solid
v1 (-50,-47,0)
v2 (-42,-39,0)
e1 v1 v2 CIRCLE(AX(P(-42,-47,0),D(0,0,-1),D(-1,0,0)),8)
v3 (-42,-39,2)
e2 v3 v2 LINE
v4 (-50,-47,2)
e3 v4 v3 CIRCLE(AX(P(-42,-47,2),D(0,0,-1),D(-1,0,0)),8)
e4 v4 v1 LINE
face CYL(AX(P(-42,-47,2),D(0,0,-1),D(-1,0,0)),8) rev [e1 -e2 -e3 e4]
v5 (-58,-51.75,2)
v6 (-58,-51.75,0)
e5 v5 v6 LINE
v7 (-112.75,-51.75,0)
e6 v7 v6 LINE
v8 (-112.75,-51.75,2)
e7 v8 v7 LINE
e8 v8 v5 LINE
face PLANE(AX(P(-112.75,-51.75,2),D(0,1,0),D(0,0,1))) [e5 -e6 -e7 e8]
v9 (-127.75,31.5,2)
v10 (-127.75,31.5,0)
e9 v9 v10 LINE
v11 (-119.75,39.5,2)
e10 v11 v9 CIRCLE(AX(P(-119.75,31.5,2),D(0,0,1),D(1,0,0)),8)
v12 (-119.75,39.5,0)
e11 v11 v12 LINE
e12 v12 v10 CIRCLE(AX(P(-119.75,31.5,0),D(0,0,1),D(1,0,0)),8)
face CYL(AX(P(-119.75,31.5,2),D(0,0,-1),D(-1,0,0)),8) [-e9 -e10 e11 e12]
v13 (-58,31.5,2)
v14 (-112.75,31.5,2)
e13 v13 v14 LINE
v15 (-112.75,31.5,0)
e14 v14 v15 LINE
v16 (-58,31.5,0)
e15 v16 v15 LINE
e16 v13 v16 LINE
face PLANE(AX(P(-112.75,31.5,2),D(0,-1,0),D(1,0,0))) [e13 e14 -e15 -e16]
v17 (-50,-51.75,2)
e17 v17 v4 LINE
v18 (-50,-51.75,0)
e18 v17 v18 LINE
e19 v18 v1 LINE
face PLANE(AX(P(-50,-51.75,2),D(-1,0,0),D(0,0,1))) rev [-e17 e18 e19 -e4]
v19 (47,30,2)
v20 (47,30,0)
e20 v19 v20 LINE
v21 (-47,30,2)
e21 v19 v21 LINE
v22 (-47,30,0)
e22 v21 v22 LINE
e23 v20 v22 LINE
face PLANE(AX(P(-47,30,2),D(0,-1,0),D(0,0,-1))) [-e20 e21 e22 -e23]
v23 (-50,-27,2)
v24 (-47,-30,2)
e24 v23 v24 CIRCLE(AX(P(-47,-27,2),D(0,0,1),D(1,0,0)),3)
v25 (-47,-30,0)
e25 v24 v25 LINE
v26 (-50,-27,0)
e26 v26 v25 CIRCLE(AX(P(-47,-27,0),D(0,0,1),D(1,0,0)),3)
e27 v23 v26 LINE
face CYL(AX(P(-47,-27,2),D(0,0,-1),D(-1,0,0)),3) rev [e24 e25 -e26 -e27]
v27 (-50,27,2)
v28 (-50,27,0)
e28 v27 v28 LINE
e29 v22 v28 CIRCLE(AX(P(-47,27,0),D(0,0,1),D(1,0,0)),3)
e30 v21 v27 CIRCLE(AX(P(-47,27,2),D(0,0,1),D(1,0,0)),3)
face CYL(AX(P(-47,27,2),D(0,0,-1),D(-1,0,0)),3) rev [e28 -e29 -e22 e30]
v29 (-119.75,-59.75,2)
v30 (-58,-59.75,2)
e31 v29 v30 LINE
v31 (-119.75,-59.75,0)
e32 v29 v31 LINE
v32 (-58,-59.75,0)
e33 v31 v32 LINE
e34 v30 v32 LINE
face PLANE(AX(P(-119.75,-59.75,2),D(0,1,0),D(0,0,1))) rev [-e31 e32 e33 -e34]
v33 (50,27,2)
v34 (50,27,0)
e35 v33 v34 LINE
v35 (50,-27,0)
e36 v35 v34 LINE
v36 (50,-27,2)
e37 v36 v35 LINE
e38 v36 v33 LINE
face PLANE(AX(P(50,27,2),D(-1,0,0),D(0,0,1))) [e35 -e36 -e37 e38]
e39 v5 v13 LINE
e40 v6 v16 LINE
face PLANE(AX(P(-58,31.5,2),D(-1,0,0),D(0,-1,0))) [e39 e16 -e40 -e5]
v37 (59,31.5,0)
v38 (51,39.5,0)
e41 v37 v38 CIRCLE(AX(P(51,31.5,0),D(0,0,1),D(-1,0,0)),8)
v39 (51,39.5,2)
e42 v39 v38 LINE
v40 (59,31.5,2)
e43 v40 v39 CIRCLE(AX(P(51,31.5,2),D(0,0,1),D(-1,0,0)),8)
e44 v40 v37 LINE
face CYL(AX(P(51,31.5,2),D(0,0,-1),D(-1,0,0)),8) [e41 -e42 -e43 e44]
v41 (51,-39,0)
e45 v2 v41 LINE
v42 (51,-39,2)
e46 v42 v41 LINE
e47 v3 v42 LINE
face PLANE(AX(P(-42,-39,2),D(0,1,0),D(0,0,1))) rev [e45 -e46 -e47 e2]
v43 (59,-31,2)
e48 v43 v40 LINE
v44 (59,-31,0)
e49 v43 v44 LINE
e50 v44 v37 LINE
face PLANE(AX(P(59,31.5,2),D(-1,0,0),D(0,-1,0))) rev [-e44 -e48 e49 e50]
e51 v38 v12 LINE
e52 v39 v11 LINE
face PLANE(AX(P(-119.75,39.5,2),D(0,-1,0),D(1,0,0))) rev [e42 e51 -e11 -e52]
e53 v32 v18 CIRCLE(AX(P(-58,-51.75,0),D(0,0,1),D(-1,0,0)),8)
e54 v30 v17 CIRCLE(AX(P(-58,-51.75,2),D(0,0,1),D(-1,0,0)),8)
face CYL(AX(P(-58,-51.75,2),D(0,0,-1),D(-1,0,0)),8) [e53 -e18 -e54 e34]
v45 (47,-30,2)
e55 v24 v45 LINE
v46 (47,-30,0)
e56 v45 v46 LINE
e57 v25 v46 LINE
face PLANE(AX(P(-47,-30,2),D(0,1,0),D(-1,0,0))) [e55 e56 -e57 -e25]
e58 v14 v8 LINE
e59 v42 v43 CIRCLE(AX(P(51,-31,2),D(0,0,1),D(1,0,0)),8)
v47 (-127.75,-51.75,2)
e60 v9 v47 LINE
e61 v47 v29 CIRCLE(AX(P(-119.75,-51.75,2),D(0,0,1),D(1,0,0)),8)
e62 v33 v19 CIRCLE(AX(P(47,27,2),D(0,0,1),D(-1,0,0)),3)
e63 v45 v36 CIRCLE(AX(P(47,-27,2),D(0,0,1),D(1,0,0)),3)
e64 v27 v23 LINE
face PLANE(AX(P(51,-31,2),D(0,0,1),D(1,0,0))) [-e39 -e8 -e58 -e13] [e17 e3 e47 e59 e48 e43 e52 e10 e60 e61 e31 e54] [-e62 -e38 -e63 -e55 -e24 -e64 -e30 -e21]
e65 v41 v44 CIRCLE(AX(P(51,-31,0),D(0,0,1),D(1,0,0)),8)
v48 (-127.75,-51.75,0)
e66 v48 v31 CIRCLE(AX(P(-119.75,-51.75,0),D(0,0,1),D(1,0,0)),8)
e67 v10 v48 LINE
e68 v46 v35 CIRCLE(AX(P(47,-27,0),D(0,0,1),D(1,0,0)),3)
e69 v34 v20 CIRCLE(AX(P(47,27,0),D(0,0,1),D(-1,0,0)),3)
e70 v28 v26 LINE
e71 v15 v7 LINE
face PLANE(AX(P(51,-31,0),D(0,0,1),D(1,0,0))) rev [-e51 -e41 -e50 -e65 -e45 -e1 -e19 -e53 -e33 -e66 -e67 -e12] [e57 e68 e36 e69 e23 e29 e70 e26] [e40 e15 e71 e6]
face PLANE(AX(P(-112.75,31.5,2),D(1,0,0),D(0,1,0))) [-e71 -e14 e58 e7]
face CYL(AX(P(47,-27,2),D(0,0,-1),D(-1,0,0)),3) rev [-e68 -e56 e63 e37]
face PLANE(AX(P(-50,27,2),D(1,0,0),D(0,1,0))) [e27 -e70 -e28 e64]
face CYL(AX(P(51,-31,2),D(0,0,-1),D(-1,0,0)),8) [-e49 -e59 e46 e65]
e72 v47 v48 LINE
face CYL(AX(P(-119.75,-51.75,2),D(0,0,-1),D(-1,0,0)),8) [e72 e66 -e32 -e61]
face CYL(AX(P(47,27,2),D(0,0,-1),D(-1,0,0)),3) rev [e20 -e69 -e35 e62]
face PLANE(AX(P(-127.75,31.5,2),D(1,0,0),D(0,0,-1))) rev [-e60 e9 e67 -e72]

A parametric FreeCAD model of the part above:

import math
import FreeCAD as App
import Part
import Sketcher
from FreeCAD import Vector

doc = App.newDocument("Part")
body = doc.addObject("PartDesign::Body", "Body")

# Sketch on XY plane
sketch1 = body.newObject("Sketcher::SketchObject", "Sketch")
sketch1.AttachmentSupport = (doc.getObject("XY_Plane"), [""])
sketch1.MapMode = "FlatFace"
sketch1.addGeometry(Part.LineSegment(Vector(-50, -51.8, 0), Vector(-50, -47, 0)), False)
sketch1.addGeometry(Part.ArcOfCircle(Part.Circle(Vector(-42, -47, 0), Vector(0, 0, 1), 8), math.radians(90), math.radians(180)), False)
sketch1.addGeometry(Part.LineSegment(Vector(-42, -39, 0), Vector(51, -39, 0)), False)
sketch1.addGeometry(Part.ArcOfCircle(Part.Circle(Vector(51, -31, 0), Vector(0, 0, 1), 8), math.radians(-90), math.radians(0)), False)
sketch1.addGeometry(Part.LineSegment(Vector(59, -31, 0), Vector(59, 31.5, 0)), False)
sketch1.addGeometry(Part.ArcOfCircle(Part.Circle(Vector(51, 31.5, 0), Vector(0, 0, 1), 8), math.radians(0), math.radians(90)), False)
sketch1.addGeometry(Part.LineSegment(Vector(51, 39.5, 0), Vector(-119.8, 39.5, 0)), False)
sketch1.addGeometry(Part.ArcOfCircle(Part.Circle(Vector(-119.7, 31.5, 0), Vector(0, 0, 1), 8), math.radians(90), math.radians(180)), False)
sketch1.addGeometry(Part.LineSegment(Vector(-127.8, 31.5, 0), Vector(-127.8, -51.8, 0)), False)
sketch1.addGeometry(Part.ArcOfCircle(Part.Circle(Vector(-119.7, -51.7, 0), Vector(0, 0, 1), 8), math.radians(-180), math.radians(-90)), False)
sketch1.addGeometry(Part.LineSegment(Vector(-119.8, -59.8, 0), Vector(-58, -59.8, 0)), False)
sketch1.addGeometry(Part.ArcOfCircle(Part.Circle(Vector(-58, -51.7, 0), Vector(0, 0, 1), 8), math.radians(-90), math.radians(0)), False)
sketch1.addGeometry(Part.LineSegment(Vector(-58, -51.8, 0), Vector(-112.8, -51.8, 0)), False)
sketch1.addGeometry(Part.LineSegment(Vector(-112.8, -51.8, 0), Vector(-112.8, 31.5, 0)), False)
sketch1.addGeometry(Part.LineSegment(Vector(-112.8, 31.5, 0), Vector(-58, 31.5, 0)), False)
sketch1.addGeometry(Part.LineSegment(Vector(-58, 31.5, 0), Vector(-58, -51.8, 0)), False)
sketch1.addGeometry(Part.ArcOfCircle(Part.Circle(Vector(-47, 27, 0), Vector(0, 0, 1), 3), math.radians(90), math.radians(180)), False)
sketch1.addGeometry(Part.LineSegment(Vector(-47, 30, 0), Vector(47, 30, 0)), False)
sketch1.addGeometry(Part.ArcOfCircle(Part.Circle(Vector(47, 27, 0), Vector(0, 0, 1), 3), math.radians(0), math.radians(90)), False)
sketch1.addGeometry(Part.LineSegment(Vector(50, 27, 0), Vector(50, -27, 0)), False)
sketch1.addGeometry(Part.ArcOfCircle(Part.Circle(Vector(47, -27, 0), Vector(0, 0, 1), 3), math.radians(-90), math.radians(0)), False)
sketch1.addGeometry(Part.LineSegment(Vector(47, -30, 0), Vector(-47, -30, 0)), False)
sketch1.addGeometry(Part.ArcOfCircle(Part.Circle(Vector(-47, -27, 0), Vector(0, 0, 1), 3), math.radians(180), math.radians(270)), False)
sketch1.addGeometry(Part.LineSegment(Vector(-50, -27, 0), Vector(-50, 27, 0)), False)
sketch1.addConstraint(Sketcher.Constraint("Tangent", 0, 2, 1, 2))
sketch1.addConstraint(Sketcher.Constraint("Tangent", 1, 1, 2, 1))
sketch1.addConstraint(Sketcher.Constraint("Tangent", 2, 2, 3, 1))
sketch1.addConstraint(Sketcher.Constraint("Tangent", 3, 2, 4, 1))
sketch1.addConstraint(Sketcher.Constraint("Tangent", 4, 2, 5, 1))
sketch1.addConstraint(Sketcher.Constraint("Tangent", 5, 2, 6, 1))
sketch1.addConstraint(Sketcher.Constraint("Tangent", 6, 2, 7, 1))
sketch1.addConstraint(Sketcher.Constraint("Tangent", 7, 2, 8, 1))
sketch1.addConstraint(Sketcher.Constraint("Tangent", 8, 2, 9, 1))
sketch1.addConstraint(Sketcher.Constraint("Tangent", 9, 2, 10, 1))
sketch1.addConstraint(Sketcher.Constraint("Tangent", 10, 2, 11, 1))
sketch1.addConstraint(Sketcher.Constraint("Tangent", 11, 2, 0, 1))
sketch1.addConstraint(Sketcher.Constraint("Coincident", 12, 2, 13, 1))
sketch1.addConstraint(Sketcher.Constraint("Coincident", 13, 2, 14, 1))
sketch1.addConstraint(Sketcher.Constraint("Coincident", 14, 2, 15, 1))
sketch1.addConstraint(Sketcher.Constraint("Coincident", 15, 2, 12, 1))
sketch1.addConstraint(Sketcher.Constraint("Tangent", 16, 1, 17, 1))
sketch1.addConstraint(Sketcher.Constraint("Tangent", 17, 2, 18, 2))
sketch1.addConstraint(Sketcher.Constraint("Tangent", 18, 1, 19, 1))
sketch1.addConstraint(Sketcher.Constraint("Tangent", 19, 2, 20, 2))
sketch1.addConstraint(Sketcher.Constraint("Tangent", 20, 1, 21, 1))
sketch1.addConstraint(Sketcher.Constraint("Tangent", 21, 2, 22, 2))
sketch1.addConstraint(Sketcher.Constraint("Tangent", 22, 1, 23, 1))
sketch1.addConstraint(Sketcher.Constraint("Tangent", 23, 2, 16, 2))
sketch1.addConstraint(Sketcher.Constraint("Vertical", 0))
sketch1.addConstraint(Sketcher.Constraint("Horizontal", 2))
sketch1.addConstraint(Sketcher.Constraint("Vertical", 4))
sketch1.addConstraint(Sketcher.Constraint("Horizontal", 6))
sketch1.addConstraint(Sketcher.Constraint("Vertical", 8))
sketch1.addConstraint(Sketcher.Constraint("Horizontal", 10))
sketch1.addConstraint(Sketcher.Constraint("Horizontal", 12))
sketch1.addConstraint(Sketcher.Constraint("Vertical", 13))
sketch1.addConstraint(Sketcher.Constraint("Horizontal", 14))
sketch1.addConstraint(Sketcher.Constraint("Vertical", 15))
sketch1.addConstraint(Sketcher.Constraint("Horizontal", 17))
sketch1.addConstraint(Sketcher.Constraint("Vertical", 19))
sketch1.addConstraint(Sketcher.Constraint("Horizontal", 21))
sketch1.addConstraint(Sketcher.Constraint("Vertical", 23))
sketch1.addConstraint(Sketcher.Constraint("Coincident", 15, 2, 11, 3))
sketch1.addConstraint(Sketcher.Constraint("Equal", 1, 3))
sketch1.addConstraint(Sketcher.Constraint("Equal", 3, 5))
sketch1.addConstraint(Sketcher.Constraint("Equal", 5, 7))
sketch1.addConstraint(Sketcher.Constraint("Equal", 7, 9))
sketch1.addConstraint(Sketcher.Constraint("Equal", 9, 11))
sketch1.addConstraint(Sketcher.Constraint("Equal", 16, 18))
sketch1.addConstraint(Sketcher.Constraint("Equal", 18, 20))
sketch1.addConstraint(Sketcher.Constraint("Equal", 20, 22))
sketch1.addConstraint(Sketcher.Constraint("Symmetric", 16, 3, 20, 3, -1, 1))
sketch1.addConstraint(Sketcher.Constraint("Horizontal", 7, 2, 13, 2))
sketch1.addConstraint(Sketcher.Constraint("Vertical", 11, 2, 22, 1))
sketch1.addConstraint(Sketcher.Constraint("Radius", 1, 8.0))
sketch1.addConstraint(Sketcher.Constraint("Radius", 16, 3.0))
sketch1.addConstraint(Sketcher.Constraint("DistanceX", 2, 1, 2, 2, 93.0))
sketch1.addConstraint(Sketcher.Constraint("DistanceX", 17, 1, 17, 2, 94.0))
sketch1.addConstraint(Sketcher.Constraint("DistanceY", 19, 2, 19, 1, 54.0))
sketch1.addConstraint(Sketcher.Constraint("DistanceY", 4, 1, 4, 2, 62.5))
sketch1.addConstraint(Sketcher.Constraint("DistanceY", 1, 3, -1, 1, 47.0))
sketch1.addConstraint(Sketcher.Constraint("DistanceX", 9, 3, 12, 2, 7.0))
sketch1.addConstraint(Sketcher.Constraint("DistanceX", 6, 2, 6, 1, 170.75))
sketch1.addConstraint(Sketcher.Constraint("DistanceY", 0, 1, 0, 2, 4.75))
pad1 = body.newObject("PartDesign::Pad", "Pad")
pad1.Profile = sketch1
pad1.Length = 2

doc.recompute()
